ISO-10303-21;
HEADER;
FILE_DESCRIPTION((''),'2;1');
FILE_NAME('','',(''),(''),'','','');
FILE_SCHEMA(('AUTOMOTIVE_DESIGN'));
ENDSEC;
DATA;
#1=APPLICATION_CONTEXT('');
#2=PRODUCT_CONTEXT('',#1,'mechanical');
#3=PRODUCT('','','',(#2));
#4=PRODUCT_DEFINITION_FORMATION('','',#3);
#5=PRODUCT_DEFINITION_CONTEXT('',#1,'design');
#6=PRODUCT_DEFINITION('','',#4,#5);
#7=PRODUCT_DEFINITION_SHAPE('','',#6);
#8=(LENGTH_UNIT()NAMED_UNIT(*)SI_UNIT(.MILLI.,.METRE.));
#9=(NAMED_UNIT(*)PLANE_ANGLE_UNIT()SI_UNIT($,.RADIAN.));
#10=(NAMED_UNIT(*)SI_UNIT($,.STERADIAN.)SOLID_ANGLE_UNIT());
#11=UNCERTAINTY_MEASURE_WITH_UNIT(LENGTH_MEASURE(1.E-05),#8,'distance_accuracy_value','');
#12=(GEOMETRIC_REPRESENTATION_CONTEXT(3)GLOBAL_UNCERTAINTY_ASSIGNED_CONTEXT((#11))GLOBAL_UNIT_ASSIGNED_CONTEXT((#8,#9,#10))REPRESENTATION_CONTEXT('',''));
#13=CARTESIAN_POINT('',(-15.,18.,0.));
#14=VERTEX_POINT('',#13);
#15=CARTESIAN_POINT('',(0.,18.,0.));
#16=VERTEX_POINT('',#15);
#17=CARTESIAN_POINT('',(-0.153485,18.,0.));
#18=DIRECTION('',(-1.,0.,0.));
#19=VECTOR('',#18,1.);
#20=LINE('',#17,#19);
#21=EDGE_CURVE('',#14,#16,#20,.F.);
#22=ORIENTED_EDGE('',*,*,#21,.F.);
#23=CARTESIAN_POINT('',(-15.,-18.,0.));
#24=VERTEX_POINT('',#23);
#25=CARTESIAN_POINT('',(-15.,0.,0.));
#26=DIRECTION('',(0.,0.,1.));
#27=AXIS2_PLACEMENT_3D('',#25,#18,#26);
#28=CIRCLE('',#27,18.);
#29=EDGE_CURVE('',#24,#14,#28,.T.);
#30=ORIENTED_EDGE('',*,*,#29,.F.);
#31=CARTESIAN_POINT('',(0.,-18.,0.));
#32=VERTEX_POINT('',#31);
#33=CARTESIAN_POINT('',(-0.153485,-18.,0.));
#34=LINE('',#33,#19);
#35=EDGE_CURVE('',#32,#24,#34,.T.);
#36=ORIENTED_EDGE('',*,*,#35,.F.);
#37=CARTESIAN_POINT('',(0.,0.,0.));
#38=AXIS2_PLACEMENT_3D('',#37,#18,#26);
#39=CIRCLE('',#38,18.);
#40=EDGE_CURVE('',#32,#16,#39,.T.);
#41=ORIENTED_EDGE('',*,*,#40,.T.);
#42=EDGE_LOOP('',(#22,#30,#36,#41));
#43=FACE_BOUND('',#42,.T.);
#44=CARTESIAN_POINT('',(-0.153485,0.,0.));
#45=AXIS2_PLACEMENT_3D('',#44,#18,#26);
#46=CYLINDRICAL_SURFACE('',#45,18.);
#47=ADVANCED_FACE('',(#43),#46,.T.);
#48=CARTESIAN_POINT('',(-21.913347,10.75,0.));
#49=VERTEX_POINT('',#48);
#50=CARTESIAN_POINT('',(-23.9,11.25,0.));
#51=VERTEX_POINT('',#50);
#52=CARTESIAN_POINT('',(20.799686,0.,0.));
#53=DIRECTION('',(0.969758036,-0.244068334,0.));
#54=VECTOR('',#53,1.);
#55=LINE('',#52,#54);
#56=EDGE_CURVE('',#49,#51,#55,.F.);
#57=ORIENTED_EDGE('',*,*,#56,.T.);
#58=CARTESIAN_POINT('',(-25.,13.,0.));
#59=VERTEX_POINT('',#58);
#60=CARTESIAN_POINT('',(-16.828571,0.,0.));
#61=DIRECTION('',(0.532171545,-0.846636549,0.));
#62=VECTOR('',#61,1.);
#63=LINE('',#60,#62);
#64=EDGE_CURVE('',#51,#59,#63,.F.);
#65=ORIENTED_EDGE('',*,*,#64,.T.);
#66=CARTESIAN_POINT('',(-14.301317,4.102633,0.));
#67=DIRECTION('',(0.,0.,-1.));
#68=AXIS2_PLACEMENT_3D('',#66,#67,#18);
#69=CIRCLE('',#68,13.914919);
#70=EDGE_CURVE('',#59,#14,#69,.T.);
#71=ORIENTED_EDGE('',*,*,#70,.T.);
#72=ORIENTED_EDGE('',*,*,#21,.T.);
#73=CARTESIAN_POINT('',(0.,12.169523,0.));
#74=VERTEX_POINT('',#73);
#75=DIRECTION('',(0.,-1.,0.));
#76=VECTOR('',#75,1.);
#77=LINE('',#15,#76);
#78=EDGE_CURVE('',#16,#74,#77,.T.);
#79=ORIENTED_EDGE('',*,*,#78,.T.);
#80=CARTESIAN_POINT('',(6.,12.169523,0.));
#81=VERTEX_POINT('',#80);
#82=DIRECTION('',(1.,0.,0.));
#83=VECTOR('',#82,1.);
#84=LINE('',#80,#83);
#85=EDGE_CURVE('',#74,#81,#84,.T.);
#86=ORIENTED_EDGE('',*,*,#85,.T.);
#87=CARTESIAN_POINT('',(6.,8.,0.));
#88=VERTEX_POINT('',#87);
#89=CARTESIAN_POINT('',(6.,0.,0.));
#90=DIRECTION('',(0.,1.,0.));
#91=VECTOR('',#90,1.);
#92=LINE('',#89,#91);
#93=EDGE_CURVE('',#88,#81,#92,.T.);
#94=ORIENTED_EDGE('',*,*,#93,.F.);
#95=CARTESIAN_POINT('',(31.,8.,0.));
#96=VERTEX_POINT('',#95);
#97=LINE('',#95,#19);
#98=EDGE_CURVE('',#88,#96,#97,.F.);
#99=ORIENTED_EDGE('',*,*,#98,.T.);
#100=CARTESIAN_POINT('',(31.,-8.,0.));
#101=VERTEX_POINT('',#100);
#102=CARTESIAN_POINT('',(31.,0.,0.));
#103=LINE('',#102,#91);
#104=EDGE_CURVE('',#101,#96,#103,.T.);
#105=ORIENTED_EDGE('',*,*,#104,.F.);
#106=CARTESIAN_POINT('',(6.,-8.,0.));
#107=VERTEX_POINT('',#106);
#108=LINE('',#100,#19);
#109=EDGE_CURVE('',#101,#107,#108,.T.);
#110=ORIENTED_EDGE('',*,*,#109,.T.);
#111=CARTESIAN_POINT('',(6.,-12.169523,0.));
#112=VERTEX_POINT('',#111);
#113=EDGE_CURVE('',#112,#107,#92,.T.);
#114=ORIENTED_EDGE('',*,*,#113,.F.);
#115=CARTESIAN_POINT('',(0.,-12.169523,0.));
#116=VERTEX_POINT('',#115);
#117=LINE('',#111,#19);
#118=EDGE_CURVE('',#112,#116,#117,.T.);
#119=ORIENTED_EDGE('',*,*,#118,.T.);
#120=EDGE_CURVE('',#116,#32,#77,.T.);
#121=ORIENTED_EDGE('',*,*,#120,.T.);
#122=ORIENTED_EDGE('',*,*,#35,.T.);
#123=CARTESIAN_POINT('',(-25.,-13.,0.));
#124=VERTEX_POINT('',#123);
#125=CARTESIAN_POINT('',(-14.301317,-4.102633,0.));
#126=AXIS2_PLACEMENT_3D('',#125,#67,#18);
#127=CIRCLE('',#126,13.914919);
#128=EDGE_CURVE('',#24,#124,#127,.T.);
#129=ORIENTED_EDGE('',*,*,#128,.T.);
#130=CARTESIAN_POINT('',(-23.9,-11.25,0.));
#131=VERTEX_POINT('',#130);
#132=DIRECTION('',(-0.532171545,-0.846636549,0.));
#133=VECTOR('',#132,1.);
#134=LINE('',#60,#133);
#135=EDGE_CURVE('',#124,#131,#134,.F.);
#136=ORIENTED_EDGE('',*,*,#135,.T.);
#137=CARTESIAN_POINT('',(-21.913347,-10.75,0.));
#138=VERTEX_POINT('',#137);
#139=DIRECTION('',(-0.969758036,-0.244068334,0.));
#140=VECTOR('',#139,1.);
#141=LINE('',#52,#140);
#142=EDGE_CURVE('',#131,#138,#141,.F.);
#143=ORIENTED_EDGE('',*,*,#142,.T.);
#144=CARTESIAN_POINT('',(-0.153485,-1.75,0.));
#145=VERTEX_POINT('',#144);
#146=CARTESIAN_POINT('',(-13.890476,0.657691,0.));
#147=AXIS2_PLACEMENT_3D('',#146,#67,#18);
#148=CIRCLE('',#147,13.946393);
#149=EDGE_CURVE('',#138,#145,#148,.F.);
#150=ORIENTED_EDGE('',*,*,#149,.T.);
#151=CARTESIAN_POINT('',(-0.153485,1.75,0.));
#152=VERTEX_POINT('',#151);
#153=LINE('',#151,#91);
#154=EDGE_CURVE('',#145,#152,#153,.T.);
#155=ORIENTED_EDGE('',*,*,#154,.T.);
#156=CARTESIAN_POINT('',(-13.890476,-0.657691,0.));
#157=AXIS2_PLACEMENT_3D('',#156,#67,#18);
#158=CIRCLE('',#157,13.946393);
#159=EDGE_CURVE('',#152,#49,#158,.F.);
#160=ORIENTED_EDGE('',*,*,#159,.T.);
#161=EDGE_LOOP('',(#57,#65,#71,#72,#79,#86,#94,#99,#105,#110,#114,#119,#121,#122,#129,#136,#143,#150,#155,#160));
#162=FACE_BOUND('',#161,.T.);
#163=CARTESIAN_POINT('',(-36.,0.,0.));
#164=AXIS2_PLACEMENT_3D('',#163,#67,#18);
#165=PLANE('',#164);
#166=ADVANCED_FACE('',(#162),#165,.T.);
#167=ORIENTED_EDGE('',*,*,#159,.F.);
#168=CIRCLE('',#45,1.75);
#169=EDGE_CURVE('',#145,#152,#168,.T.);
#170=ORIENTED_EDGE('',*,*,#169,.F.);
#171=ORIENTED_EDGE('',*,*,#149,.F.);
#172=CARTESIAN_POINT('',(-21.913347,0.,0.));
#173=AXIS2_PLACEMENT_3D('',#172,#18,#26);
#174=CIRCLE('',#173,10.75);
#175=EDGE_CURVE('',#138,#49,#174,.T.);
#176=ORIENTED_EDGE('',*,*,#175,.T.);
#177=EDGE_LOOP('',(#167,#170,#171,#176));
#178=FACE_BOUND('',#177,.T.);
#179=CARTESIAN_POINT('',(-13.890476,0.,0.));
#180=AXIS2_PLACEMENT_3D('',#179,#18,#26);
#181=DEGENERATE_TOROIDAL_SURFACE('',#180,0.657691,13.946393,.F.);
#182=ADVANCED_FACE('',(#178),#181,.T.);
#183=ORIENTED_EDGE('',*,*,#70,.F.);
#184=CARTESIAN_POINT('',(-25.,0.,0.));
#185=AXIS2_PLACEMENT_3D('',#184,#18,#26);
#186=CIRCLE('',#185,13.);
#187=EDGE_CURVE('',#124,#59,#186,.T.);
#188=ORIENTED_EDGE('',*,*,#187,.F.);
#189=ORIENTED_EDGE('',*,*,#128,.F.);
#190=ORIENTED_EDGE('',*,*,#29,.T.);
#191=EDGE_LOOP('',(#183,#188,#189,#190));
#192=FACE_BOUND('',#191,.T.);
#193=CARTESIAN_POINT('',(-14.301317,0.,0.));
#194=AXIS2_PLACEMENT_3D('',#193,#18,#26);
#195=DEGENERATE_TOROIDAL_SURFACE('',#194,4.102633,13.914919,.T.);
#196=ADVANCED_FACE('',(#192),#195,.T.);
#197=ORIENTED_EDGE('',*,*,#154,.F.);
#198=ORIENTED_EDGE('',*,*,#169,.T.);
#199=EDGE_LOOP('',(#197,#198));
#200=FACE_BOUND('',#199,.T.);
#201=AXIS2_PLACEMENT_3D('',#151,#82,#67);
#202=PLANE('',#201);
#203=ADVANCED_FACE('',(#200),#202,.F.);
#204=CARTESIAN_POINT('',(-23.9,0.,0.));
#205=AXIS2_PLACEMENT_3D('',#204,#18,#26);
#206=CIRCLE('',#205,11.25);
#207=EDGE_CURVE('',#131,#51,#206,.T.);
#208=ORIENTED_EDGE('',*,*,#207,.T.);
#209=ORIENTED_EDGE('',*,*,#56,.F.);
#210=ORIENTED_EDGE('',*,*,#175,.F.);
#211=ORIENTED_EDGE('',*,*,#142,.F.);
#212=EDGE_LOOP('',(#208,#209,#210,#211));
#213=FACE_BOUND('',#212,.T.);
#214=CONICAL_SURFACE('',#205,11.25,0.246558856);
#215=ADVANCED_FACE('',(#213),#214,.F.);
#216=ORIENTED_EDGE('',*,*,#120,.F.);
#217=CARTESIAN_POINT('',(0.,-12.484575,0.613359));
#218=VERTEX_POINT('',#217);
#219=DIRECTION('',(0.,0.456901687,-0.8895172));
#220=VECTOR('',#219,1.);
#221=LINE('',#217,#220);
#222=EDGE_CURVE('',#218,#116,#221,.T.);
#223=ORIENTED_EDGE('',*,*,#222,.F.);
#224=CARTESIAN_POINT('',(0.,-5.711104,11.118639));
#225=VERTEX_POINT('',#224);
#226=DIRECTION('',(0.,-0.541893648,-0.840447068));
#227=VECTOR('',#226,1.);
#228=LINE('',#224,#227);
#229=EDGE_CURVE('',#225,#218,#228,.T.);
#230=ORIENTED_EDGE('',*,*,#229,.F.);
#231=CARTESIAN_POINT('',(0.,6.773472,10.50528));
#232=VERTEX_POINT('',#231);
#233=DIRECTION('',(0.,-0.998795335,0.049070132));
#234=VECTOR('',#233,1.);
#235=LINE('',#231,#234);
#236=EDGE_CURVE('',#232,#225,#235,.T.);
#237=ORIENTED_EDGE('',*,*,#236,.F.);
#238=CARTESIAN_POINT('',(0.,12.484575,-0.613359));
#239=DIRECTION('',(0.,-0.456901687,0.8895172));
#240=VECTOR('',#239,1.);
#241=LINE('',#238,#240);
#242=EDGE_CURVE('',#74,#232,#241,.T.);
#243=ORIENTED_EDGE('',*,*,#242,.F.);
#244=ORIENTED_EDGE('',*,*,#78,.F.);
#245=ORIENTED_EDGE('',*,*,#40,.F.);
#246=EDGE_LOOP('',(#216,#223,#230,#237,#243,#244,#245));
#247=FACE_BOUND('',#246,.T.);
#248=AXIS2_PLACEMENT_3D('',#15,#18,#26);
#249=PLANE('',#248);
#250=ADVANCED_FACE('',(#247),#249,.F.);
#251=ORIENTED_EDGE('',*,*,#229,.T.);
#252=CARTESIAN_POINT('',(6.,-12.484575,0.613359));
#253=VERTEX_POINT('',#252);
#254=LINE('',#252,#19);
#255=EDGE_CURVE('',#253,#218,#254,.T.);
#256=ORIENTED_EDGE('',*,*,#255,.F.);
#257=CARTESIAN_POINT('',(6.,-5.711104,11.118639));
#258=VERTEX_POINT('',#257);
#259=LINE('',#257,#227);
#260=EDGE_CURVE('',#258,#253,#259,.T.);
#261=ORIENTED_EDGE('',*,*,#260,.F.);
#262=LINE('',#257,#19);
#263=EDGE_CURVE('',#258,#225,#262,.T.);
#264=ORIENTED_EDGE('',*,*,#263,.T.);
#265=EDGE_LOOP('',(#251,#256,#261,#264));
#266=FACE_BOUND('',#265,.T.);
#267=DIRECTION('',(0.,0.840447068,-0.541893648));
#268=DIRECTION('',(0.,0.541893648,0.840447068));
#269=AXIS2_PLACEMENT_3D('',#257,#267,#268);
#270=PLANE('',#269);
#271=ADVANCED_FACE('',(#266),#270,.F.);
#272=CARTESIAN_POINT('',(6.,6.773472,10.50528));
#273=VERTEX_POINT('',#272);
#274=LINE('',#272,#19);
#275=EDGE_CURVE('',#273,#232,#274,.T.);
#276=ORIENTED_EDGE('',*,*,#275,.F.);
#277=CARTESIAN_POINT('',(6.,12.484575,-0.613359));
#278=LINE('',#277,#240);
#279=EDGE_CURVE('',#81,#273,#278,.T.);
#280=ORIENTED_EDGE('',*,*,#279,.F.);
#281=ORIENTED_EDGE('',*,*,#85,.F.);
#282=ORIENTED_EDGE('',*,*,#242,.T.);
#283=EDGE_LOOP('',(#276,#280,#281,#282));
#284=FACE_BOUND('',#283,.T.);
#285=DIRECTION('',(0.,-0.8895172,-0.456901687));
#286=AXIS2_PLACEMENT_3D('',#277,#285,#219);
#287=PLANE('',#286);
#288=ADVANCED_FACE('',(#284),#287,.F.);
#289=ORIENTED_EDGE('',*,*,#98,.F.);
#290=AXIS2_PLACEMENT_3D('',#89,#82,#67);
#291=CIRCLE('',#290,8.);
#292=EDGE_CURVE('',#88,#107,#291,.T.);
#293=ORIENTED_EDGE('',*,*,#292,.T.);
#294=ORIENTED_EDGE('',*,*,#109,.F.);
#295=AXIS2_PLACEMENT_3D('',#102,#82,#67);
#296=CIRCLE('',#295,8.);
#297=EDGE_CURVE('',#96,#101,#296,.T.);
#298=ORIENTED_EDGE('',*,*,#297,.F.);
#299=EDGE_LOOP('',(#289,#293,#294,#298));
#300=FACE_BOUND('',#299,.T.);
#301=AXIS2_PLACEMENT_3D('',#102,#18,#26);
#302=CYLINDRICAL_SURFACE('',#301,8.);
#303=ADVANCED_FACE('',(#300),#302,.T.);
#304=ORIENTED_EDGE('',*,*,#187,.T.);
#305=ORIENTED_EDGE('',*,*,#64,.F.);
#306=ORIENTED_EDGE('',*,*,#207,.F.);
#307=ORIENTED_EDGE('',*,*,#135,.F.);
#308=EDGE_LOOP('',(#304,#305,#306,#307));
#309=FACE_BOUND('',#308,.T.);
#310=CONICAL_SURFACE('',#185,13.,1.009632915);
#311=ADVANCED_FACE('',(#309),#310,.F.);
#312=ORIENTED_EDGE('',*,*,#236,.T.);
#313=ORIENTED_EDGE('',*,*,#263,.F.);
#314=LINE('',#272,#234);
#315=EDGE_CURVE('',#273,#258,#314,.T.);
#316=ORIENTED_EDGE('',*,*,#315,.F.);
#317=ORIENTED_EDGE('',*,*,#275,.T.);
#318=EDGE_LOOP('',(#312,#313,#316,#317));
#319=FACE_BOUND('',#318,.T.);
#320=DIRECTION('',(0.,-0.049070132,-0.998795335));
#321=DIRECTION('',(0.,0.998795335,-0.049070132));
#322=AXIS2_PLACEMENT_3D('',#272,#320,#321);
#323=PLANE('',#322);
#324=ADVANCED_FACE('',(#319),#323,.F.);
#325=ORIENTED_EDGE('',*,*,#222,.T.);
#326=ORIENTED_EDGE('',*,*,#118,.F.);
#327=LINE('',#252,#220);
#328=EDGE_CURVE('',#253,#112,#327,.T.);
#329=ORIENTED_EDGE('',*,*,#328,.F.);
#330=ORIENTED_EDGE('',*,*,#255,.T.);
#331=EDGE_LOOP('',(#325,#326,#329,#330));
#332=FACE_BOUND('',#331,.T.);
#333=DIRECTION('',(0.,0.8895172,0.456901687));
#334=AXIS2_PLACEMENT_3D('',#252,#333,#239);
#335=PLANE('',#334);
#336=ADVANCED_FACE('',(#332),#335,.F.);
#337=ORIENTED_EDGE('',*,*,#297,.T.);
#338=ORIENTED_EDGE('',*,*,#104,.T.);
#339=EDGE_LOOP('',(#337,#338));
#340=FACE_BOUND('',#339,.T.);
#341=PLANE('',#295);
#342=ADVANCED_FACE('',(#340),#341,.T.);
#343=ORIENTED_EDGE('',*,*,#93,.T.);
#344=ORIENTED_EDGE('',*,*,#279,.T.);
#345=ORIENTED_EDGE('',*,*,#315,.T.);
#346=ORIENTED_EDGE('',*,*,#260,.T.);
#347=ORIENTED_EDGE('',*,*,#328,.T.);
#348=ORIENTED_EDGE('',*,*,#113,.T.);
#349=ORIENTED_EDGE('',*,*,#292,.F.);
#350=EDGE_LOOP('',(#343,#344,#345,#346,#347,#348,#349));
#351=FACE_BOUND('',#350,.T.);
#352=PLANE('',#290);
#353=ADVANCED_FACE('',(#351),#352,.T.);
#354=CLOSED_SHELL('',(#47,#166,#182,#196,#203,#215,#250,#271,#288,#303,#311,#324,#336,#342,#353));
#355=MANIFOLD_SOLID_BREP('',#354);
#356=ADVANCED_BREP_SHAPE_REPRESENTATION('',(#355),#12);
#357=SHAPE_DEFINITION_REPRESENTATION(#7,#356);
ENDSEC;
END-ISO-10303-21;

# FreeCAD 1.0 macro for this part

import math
import FreeCAD as App
import Part
import Sketcher

doc = App.newDocument("Part")
body = doc.addObject("PartDesign::Body", "Body")

sketch1 = doc.addObject("Sketcher::SketchObject", "Sketch")
body.addObject(sketch1)
sketch1.AttachmentSupport = (doc.XY_Plane, [""])
sketch1.MapMode = "FlatFace"
sketch1.addGeometry([
    Part.LineSegment(App.Vector(-25, 13, 0), App.Vector(-23.9, 11.25, 0)),
    Part.LineSegment(App.Vector(-23.9, 11.25, 0), App.Vector(-21.91, 10.75, 0)),
    Part.ArcOfCircle(Part.Circle(App.Vector(-13.89, -0.66, 0), App.Vector(0, 0, 1), 13.95), math.radians(10), math.radians(125)),
    Part.LineSegment(App.Vector(-0.15, 1.75, 0), App.Vector(-0.15, 0, 0)),
    Part.LineSegment(App.Vector(-0.15, 0, 0), App.Vector(0, 0, 0)),
    Part.LineSegment(App.Vector(0, 0, 0), App.Vector(0, 18, 0)),
    Part.LineSegment(App.Vector(0, 18, 0), App.Vector(-15, 18, 0)),
    Part.ArcOfCircle(Part.Circle(App.Vector(-14.3, 4.1, 0), App.Vector(0, 0, 1), 13.91), math.radians(93), math.radians(140)),
], False)
sketch1.addConstraint([
    Sketcher.Constraint("Coincident", 0, 2, 1, 1),
    Sketcher.Constraint("Coincident", 1, 2, 2, 2),
    Sketcher.Constraint("Coincident", 2, 1, 3, 1),
    Sketcher.Constraint("Coincident", 3, 2, 4, 1),
    Sketcher.Constraint("Coincident", 4, 2, 5, 1),
    Sketcher.Constraint("Coincident", 5, 2, 6, 1),
    Sketcher.Constraint("Coincident", 6, 2, 7, 1),
    Sketcher.Constraint("Coincident", 7, 2, 0, 1),
    Sketcher.Constraint("Vertical", 3),
    Sketcher.Constraint("Horizontal", 4),
    Sketcher.Constraint("Vertical", 5),
    Sketcher.Constraint("Horizontal", 6),
    Sketcher.Constraint("Coincident", 4, 2, -1, 1),
    Sketcher.Constraint("DistanceX", 6, 2, 6, 1, 15.0),
    Sketcher.Constraint("DistanceY", 5, 1, 5, 2, 18.0),
    Sketcher.Constraint("DistanceX", 7, 2, -1, 1, 25.0),
    Sketcher.Constraint("DistanceY", -1, 1, 7, 2, 13.0),
    Sketcher.Constraint("DistanceY", 2, 1, 1, 2, 9.0),
    Sketcher.Constraint("DistanceY", 3, 2, 3, 1, 1.75),
    Sketcher.Constraint("DistanceX", 0, 2, -1, 1, 23.9),
    Sketcher.Constraint("DistanceY", 1, 2, 0, 2, 0.5),
    Sketcher.Constraint("Radius", 7, 13.914919),
    Sketcher.Constraint("Radius", 2, 13.946393),
    Sketcher.Constraint("DistanceX", 4, 1, 4, 2, 0.153485),
    Sketcher.Constraint("DistanceY", 2, 3, -1, 1, 0.657691),
])
revolution = doc.addObject("PartDesign::Revolution", "Revolution")
body.addObject(revolution)
revolution.Profile = sketch1
revolution.ReferenceAxis = (sketch1, ["H_Axis"])
revolution.Angle = 360

sketch2 = doc.addObject("Sketcher::SketchObject", "Sketch001")
body.addObject(sketch2)
sketch2.AttachmentSupport = (doc.YZ_Plane, [""])
sketch2.MapMode = "FlatFace"
sketch2.addGeometry([
    Part.LineSegment(App.Vector(-12, 1, 0), App.Vector(-7, -11, 0)),
    Part.LineSegment(App.Vector(-7, -11, 0), App.Vector(6, -11, 0)),
    Part.LineSegment(App.Vector(6, -11, 0), App.Vector(12, -1, 0)),
    Part.LineSegment(App.Vector(12, -1, 0), App.Vector(7, 11, 0)),
    Part.LineSegment(App.Vector(7, 11, 0), App.Vector(-6, 11, 0)),
    Part.LineSegment(App.Vector(-6, 11, 0), App.Vector(-12, 1, 0)),
], False)
sketch2.addConstraint([
    Sketcher.Constraint("Coincident", 0, 2, 1, 1),
    Sketcher.Constraint("Coincident", 1, 2, 2, 1),
    Sketcher.Constraint("Coincident", 2, 2, 3, 1),
    Sketcher.Constraint("Coincident", 3, 2, 4, 1),
    Sketcher.Constraint("Coincident", 4, 2, 5, 1),
    Sketcher.Constraint("Coincident", 5, 2, 0, 1),
    Sketcher.Constraint("Symmetric", 0, 2, 3, 2, -1, 1),
    Sketcher.Constraint("Symmetric", 1, 2, 4, 2, -1, 1),
    Sketcher.Constraint("Symmetric", 2, 2, 5, 2, -1, 1),
    Sketcher.Constraint("Equal", 0, 1),
    Sketcher.Constraint("Equal", 1, 2),
    Sketcher.Constraint("DistanceX", 0, 2, -1, 1, 6.773472),
    Sketcher.Constraint("DistanceY", 0, 2, -1, 1, 10.50528),
    Sketcher.Constraint("DistanceY", 1, 2, -1, 1, 11.118639),
    Sketcher.Constraint("DistanceY", 2, 2, -1, 1, 0.613359),
])
pad1 = doc.addObject("PartDesign::Pad", "Pad")
body.addObject(pad1)
pad1.Profile = sketch2
pad1.Length = 6

sketch3 = doc.addObject("Sketcher::SketchObject", "Sketch002")
body.addObject(sketch3)
sketch3.AttachmentSupport = (doc.YZ_Plane, [""])
sketch3.MapMode = "FlatFace"
sketch3.AttachmentOffset = App.Placement(App.Vector(0, 0, 6), App.Rotation())
sketch3.addGeometry(Part.Circle(App.Vector(0, 0, 0), App.Vector(0, 0, 1), 8), False)
sketch3.addConstraint([
    Sketcher.Constraint("Coincident", 0, 3, -1, 1),
    Sketcher.Constraint("Diameter", 0, 16.0),
])
pad2 = doc.addObject("PartDesign::Pad", "Pad001")
body.addObject(pad2)
pad2.Profile = sketch3
pad2.Length = 25

sketch4 = doc.addObject("Sketcher::SketchObject", "Sketch003")
body.addObject(sketch4)
sketch4.AttachmentSupport = (doc.YZ_Plane, [""])
sketch4.MapMode = "FlatFace"
sketch4.AttachmentOffset = App.Placement(App.Vector(0, 0, 31), App.Rotation())
sketch4.addGeometry([
    Part.LineSegment(App.Vector(23, 0, 0), App.Vector(-38, 0, 0)),
    Part.LineSegment(App.Vector(-38, 0, 0), App.Vector(-38, -32, 0)),
    Part.LineSegment(App.Vector(-38, -32, 0), App.Vector(23, -32, 0)),
    Part.LineSegment(App.Vector(23, -32, 0), App.Vector(23, 0, 0)),
], False)
sketch4.addConstraint([
    Sketcher.Constraint("Coincident", 0, 2, 1, 1),
    Sketcher.Constraint("Coincident", 1, 2, 2, 1),
    Sketcher.Constraint("Coincident", 2, 2, 3, 1),
    Sketcher.Constraint("Coincident", 3, 2, 0, 1),
    Sketcher.Constraint("Horizontal", 0),
    Sketcher.Constraint("Vertical", 1),
    Sketcher.Constraint("Horizontal", 2),
    Sketcher.Constraint("Vertical", 3),
    Sketcher.Constraint("PointOnObject", 0, 2, -1),
    Sketcher.Constraint("DistanceX", 0, 2, 0, 1, 60.481988),
    Sketcher.Constraint("DistanceY", 1, 2, 1, 1, 31.552756),
    Sketcher.Constraint("DistanceX", 0, 2, -1, 1, 37.659733),
])
pocket1 = doc.addObject("PartDesign::Pocket", "Pocket")
body.addObject(pocket1)
pocket1.Profile = sketch4
pocket1.Length = 67

doc.recompute()
